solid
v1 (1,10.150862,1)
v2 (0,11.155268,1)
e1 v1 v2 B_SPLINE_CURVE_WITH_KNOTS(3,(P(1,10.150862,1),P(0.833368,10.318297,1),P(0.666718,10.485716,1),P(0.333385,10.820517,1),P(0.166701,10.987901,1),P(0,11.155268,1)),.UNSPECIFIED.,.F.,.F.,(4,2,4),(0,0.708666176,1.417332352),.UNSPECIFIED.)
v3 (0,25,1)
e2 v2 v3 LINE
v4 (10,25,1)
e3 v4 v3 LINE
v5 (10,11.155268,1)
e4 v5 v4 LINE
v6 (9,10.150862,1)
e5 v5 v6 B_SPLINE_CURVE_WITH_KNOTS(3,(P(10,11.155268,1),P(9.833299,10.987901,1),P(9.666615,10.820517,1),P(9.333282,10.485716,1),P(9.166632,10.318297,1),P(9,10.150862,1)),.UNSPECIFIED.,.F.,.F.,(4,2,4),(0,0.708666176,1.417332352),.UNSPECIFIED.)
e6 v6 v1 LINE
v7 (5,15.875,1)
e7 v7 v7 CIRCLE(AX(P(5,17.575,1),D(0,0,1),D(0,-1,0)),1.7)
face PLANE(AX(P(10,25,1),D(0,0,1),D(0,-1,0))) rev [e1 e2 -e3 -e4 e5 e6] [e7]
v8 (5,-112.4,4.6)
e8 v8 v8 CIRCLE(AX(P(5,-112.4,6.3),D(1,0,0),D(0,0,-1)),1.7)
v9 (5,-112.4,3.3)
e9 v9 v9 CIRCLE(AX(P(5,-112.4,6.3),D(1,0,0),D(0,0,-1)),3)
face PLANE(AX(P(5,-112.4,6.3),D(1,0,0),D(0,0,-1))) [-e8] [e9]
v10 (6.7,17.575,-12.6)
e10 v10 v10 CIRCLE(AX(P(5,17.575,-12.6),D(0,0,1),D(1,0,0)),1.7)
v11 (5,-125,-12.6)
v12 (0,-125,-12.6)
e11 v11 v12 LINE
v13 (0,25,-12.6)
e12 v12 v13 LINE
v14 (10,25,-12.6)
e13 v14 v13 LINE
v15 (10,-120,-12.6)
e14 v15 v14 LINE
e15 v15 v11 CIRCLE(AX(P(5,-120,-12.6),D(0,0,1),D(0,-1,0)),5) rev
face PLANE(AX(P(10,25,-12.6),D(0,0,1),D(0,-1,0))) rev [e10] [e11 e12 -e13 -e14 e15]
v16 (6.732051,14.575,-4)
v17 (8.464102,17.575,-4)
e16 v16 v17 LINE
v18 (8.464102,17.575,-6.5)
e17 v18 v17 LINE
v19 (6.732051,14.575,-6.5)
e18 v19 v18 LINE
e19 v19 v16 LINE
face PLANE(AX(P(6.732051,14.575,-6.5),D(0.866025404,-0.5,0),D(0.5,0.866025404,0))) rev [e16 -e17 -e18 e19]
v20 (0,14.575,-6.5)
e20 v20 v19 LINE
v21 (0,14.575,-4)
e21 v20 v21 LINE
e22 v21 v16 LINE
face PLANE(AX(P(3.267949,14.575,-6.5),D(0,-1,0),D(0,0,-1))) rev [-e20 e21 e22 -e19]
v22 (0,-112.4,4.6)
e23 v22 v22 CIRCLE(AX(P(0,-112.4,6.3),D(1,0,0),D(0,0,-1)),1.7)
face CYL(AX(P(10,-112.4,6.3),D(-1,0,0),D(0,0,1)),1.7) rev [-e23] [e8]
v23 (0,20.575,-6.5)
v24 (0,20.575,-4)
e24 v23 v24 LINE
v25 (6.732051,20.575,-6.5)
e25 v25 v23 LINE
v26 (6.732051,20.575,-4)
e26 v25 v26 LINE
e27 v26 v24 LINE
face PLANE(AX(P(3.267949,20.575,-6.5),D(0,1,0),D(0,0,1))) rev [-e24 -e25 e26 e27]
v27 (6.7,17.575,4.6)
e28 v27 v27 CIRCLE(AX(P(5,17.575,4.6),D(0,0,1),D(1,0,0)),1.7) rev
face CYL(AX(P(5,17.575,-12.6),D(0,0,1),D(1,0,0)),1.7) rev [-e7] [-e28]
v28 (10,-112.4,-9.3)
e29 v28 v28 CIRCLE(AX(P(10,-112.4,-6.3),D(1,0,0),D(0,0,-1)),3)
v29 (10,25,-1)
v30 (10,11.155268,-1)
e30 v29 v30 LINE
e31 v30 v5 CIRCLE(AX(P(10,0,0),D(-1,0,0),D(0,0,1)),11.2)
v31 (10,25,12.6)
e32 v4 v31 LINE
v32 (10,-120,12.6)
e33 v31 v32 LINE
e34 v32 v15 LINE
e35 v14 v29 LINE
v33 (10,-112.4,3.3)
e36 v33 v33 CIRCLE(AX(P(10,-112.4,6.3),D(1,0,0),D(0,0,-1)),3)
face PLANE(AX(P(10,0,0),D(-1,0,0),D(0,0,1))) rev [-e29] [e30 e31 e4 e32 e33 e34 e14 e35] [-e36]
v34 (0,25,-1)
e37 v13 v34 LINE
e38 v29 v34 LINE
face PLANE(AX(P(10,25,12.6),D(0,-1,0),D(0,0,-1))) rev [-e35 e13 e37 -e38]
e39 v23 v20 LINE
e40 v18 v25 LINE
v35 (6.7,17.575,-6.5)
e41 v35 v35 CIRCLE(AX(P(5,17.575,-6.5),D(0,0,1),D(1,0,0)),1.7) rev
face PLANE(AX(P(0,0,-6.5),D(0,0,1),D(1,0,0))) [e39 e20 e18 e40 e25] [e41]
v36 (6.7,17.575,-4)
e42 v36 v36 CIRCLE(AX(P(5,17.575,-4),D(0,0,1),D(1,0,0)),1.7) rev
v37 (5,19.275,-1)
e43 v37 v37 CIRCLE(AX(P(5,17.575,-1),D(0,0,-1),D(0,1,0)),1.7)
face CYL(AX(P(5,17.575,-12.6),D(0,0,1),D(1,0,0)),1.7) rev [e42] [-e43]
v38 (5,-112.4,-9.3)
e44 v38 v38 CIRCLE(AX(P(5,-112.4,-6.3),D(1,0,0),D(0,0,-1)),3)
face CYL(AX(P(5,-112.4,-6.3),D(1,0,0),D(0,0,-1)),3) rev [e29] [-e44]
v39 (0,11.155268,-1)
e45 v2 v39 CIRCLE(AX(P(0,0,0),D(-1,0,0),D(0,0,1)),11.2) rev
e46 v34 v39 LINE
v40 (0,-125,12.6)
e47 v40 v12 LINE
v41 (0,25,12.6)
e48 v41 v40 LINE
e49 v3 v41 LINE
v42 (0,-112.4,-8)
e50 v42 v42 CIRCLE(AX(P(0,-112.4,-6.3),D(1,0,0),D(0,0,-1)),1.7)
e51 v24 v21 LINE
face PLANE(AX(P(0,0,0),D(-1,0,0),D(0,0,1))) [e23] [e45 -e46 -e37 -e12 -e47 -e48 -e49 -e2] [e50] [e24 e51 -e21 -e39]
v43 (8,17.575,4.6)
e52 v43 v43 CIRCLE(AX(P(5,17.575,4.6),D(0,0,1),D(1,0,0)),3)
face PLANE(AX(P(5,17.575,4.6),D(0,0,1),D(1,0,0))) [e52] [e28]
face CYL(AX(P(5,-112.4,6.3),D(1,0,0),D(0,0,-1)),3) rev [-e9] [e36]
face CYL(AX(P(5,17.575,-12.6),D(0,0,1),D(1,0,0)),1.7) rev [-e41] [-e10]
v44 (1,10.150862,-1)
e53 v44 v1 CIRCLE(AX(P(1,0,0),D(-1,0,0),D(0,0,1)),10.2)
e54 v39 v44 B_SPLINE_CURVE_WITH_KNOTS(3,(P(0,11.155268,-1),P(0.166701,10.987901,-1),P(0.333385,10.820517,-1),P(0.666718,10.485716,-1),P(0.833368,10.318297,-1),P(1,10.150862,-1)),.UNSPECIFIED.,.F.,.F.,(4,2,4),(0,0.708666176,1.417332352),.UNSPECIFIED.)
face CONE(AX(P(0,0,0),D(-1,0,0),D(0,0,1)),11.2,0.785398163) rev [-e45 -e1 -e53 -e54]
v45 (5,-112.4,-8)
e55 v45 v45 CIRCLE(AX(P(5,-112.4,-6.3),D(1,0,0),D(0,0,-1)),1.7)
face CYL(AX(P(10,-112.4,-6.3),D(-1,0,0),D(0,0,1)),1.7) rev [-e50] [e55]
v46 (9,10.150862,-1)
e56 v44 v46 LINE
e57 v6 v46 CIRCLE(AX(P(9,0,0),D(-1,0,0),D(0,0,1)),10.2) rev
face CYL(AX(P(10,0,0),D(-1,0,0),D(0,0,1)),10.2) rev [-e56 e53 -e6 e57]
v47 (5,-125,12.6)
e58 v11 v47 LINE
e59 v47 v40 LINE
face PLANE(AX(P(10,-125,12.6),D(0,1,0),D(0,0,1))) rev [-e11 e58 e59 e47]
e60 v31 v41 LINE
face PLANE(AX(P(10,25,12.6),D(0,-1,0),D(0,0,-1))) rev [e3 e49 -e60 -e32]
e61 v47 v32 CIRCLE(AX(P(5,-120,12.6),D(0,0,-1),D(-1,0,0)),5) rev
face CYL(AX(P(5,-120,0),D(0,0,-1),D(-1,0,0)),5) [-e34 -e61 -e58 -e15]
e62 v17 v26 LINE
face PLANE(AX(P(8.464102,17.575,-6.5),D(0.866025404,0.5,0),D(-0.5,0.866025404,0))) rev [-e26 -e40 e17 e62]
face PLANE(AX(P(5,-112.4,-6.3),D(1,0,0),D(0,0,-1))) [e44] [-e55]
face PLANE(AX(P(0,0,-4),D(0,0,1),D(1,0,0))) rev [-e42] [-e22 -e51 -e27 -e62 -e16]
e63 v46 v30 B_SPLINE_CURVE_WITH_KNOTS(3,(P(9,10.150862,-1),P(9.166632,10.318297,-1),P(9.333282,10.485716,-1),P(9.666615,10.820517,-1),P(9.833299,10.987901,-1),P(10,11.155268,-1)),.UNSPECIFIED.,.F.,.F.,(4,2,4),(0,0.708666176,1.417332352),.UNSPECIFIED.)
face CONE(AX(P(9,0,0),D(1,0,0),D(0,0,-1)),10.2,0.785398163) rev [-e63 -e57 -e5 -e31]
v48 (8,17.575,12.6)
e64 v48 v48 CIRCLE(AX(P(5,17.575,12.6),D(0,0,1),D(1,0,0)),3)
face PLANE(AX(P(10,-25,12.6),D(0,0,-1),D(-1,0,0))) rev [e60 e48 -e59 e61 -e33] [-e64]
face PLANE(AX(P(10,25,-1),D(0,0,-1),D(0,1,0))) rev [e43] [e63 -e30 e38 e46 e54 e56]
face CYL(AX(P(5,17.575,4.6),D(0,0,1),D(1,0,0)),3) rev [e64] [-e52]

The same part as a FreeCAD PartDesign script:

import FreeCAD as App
import Part
import Sketcher
from FreeCAD import Vector
Q = App.Units.Quantity


def edges_at(feature, points):
    """Names of the edges that pass closest to the given points."""
    edges = feature.Shape.Edges
    near = lambda p: min(range(len(edges)), key=lambda i: edges[i].distToShape(Part.Vertex(*p))[0])
    return sorted({f"Edge{near(p) + 1}" for p in points})


def add_polygon(sketch, points):
    """Adds a closed chain of lines whose ends are joined by coincident constraints."""
    first, n = sketch.GeometryCount, len(points)
    for a, b in zip(points, points[1:] + points[:1]):
        sketch.addGeometry(Part.LineSegment(App.Vector(*a, 0), App.Vector(*b, 0)), False)
    for i in range(n):
        sketch.addConstraint(Sketcher.Constraint("Coincident", first + i, 2, first + (i + 1) % n, 1))

doc = App.newDocument("Part")
params = doc.addObject("Spreadsheet::Sheet", "Params")
for row, (alias, value) in enumerate([
    ("sketch1_diameter", "20.4 mm"),
    ("sketch1_width", "150 mm"),
    ("sketch1_height", "25.2 mm"),
    ("pad1_length", "10 mm"),
    ("sketch2_diameter", "3.4 mm"),
    ("sketch3_width", "25 mm"),
    ("sketch3_height", "2 mm"),
    ("sketch4_diameter", "3.4 mm"),
    ("sketch5_height", "6 mm"),
    ("pocket4_length", "2.5 mm"),
    ("fillet_radius", "5 mm"),
    ("chamfer_size", "1 mm"),
    ("sketch6_diameter", "6 mm"),
    ("pocket5_length", "8 mm"),
    ("sketch7_diameter", "6 mm"),
    ("pocket6_length", "5 mm"),
], start=1):
    params.set(f"A{row}", alias)
    params.set(f"B{row}", "=" + value)
    params.setAlias(f"B{row}", alias)

body = doc.addObject("PartDesign::Body", "Body")

# Sketch on YZ plane
sketch1 = doc.addObject("Sketcher::SketchObject", "Sketch")
body.addObject(sketch1)
sketch1.AttachmentSupport = (doc.YZ_Plane, [""])
sketch1.MapMode = "FlatFace"
add_polygon(sketch1, [(-125, 13), (-125, -13), (25, -13), (25, 13)])  # lines 0-3
sketch1.addGeometry(Part.Circle(Vector(0, 0, 0), Vector(0, 0, 1), 10), False)  # 4
sketch1.addConstraint(Sketcher.Constraint("Vertical", 0))
sketch1.addConstraint(Sketcher.Constraint("Horizontal", 1))
sketch1.addConstraint(Sketcher.Constraint("Vertical", 2))
sketch1.addConstraint(Sketcher.Constraint("Horizontal", 3))
sketch1.addConstraint(Sketcher.Constraint("Coincident", 4, 3, -1, 1))
sketch1.addConstraint(Sketcher.Constraint("Diameter", 4, 20.4))
sketch1.addConstraint(Sketcher.Constraint("DistanceX", 1, 1, 1, 2, 150.0))
sketch1.addConstraint(Sketcher.Constraint("DistanceY", 0, 2, 0, 1, 25.2))
sketch1.addConstraint(Sketcher.Constraint("DistanceX", 0, 2, -1, 1, 125.0))
sketch1.addConstraint(Sketcher.Constraint("DistanceY", 0, 2, -1, 1, 12.6))
sketch1.setExpression("Constraints[9]", "Params.sketch1_diameter")
sketch1.setExpression("Constraints[10]", "Params.sketch1_width")
sketch1.setExpression("Constraints[11]", "Params.sketch1_height")
pad1 = doc.addObject("PartDesign::Pad", "Pad")
body.addObject(pad1)
pad1.Profile = sketch1
pad1.setExpression("Length", "Params.pad1_length")

# Sketch on YZ plane
sketch2 = doc.addObject("Sketcher::SketchObject", "Sketch001")
body.addObject(sketch2)
sketch2.AttachmentSupport = (doc.YZ_Plane, [""])
sketch2.MapMode = "FlatFace"
sketch2.addGeometry(Part.Circle(Vector(-112.4, 6.3, 0), Vector(0, 0, 1), 1.7), False)
sketch2.addGeometry(Part.Circle(Vector(-112.4, -6.3, 0), Vector(0, 0, 1), 1.7), False)
sketch2.addConstraint(Sketcher.Constraint("Equal", 0, 1))
sketch2.addConstraint(Sketcher.Constraint("Symmetric", 0, 3, 1, 3, -1))
sketch2.addConstraint(Sketcher.Constraint("Diameter", 0, 3.4))
sketch2.addConstraint(Sketcher.Constraint("DistanceX", 0, 3, -1, 1, 112.4))
sketch2.addConstraint(Sketcher.Constraint("DistanceY", -1, 1, 0, 3, 6.3))
sketch2.setExpression("Constraints[2]", "Params.sketch2_diameter")
pocket1 = doc.addObject("PartDesign::Pocket", "Pocket")
body.addObject(pocket1)
pocket1.Profile = sketch2
pocket1.Type = "ThroughAll"
pocket1.Reversed = True

# Sketch on YZ plane
sketch3 = doc.addObject("Sketcher::SketchObject", "Sketch002")
body.addObject(sketch3)
sketch3.AttachmentSupport = (doc.YZ_Plane, [""])
sketch3.MapMode = "FlatFace"
add_polygon(sketch3, [(25, -1), (0, -1), (0, 1), (25, 1)])  # lines 0-3
sketch3.addConstraint(Sketcher.Constraint("Horizontal", 0))
sketch3.addConstraint(Sketcher.Constraint("Vertical", 1))
sketch3.addConstraint(Sketcher.Constraint("Horizontal", 2))
sketch3.addConstraint(Sketcher.Constraint("Vertical", 3))
sketch3.addConstraint(Sketcher.Constraint("Symmetric", 0, 2, 1, 2, -1, 1))
sketch3.addConstraint(Sketcher.Constraint("DistanceX", 0, 2, 0, 1, 25.0))
sketch3.addConstraint(Sketcher.Constraint("DistanceY", 1, 1, 1, 2, 2.0))
sketch3.setExpression("Constraints[9]", "Params.sketch3_width")
sketch3.setExpression("Constraints[10]", "Params.sketch3_height")
pocket2 = doc.addObject("PartDesign::Pocket", "Pocket001")
body.addObject(pocket2)
pocket2.Profile = sketch3
pocket2.Type = "ThroughAll"
pocket2.Reversed = True

# Sketch on XY plane
sketch4 = doc.addObject("Sketcher::SketchObject", "Sketch003")
body.addObject(sketch4)
sketch4.AttachmentSupport = (doc.XY_Plane, [""])
sketch4.MapMode = "FlatFace"
sketch4.AttachmentOffset = App.Placement(Vector(0, 0, 12.6), App.Rotation())
sketch4.addGeometry(Part.Circle(Vector(5, 17.6, 0), Vector(0, 0, 1), 1.7), False)
sketch4.addConstraint(Sketcher.Constraint("Diameter", 0, 3.4))
sketch4.addConstraint(Sketcher.Constraint("DistanceX", -1, 1, 0, 3, 5.0))
sketch4.addConstraint(Sketcher.Constraint("DistanceY", -1, 1, 0, 3, 17.575))
sketch4.setExpression("Constraints[0]", "Params.sketch4_diameter")
pocket3 = doc.addObject("PartDesign::Pocket", "Pocket002")
body.addObject(pocket3)
pocket3.Profile = sketch4
pocket3.Type = "ThroughAll"

# Sketch on XY plane
sketch5 = doc.addObject("Sketcher::SketchObject", "Sketch004")
body.addObject(sketch5)
sketch5.AttachmentSupport = (doc.XY_Plane, [""])
sketch5.MapMode = "FlatFace"
sketch5.AttachmentOffset = App.Placement(Vector(0, 0, -4), App.Rotation())
add_polygon(sketch5, [(0, 20.6), (0, 14.6), (6.7, 14.6), (8.5, 17.6), (6.7, 20.6)])  # lines 0-4
sketch5.addConstraint(Sketcher.Constraint("Vertical", 0))
sketch5.addConstraint(Sketcher.Constraint("Horizontal", 1))
sketch5.addConstraint(Sketcher.Constraint("Horizontal", 4))
sketch5.addConstraint(Sketcher.Constraint("PointOnObject", 0, 2, -2))
sketch5.addConstraint(Sketcher.Constraint("Vertical", 1, 2, 3, 2))
sketch5.addConstraint(Sketcher.Constraint("Equal", 2, 3))
sketch5.addConstraint(Sketcher.Constraint("DistanceY", 0, 2, 0, 1, 6.0))
sketch5.addConstraint(Sketcher.Constraint("Angle", 2, Q("60 deg")))
sketch5.addConstraint(Sketcher.Constraint("DistanceY", -1, 1, 0, 2, 14.575))
sketch5.addConstraint(Sketcher.Constraint("DistanceX", 1, 1, 1, 2, 6.732051))
sketch5.setExpression("Constraints[11]", "Params.sketch5_height")
pocket4 = doc.addObject("PartDesign::Pocket", "Pocket003")
body.addObject(pocket4)
pocket4.Profile = sketch5
pocket4.setExpression("Length", "Params.pocket4_length")
doc.recompute()

fillet = doc.addObject("PartDesign::Fillet", "Fillet")
body.addObject(fillet)
fillet.Base = (pocket4, edges_at(pocket4, [(10, -125, 0)]))
fillet.setExpression("Radius", "Params.fillet_radius")
doc.recompute()

chamfer = doc.addObject("PartDesign::Chamfer", "Chamfer")
body.addObject(chamfer)
chamfer.Base = (fillet, edges_at(fillet, [(10, -10.2, 0), (0, -10.2, 0)]))
chamfer.setExpression("Size", "Params.chamfer_size")

# Sketch on XY plane
sketch6 = doc.addObject("Sketcher::SketchObject", "Sketch005")
body.addObject(sketch6)
sketch6.AttachmentSupport = (doc.XY_Plane, [""])
sketch6.MapMode = "FlatFace"
sketch6.AttachmentOffset = App.Placement(Vector(0, 0, 12.6), App.Rotation())
sketch6.addGeometry(Part.Circle(Vector(5, 17.6, 0), Vector(0, 0, 1), 3), False)
sketch6.addConstraint(Sketcher.Constraint("Diameter", 0, 6.0))
sketch6.addConstraint(Sketcher.Constraint("DistanceX", -1, 1, 0, 3, 5.0))
sketch6.addConstraint(Sketcher.Constraint("DistanceY", -1, 1, 0, 3, 17.575))
sketch6.setExpression("Constraints[0]", "Params.sketch6_diameter")
pocket5 = doc.addObject("PartDesign::Pocket", "Pocket004")
body.addObject(pocket5)
pocket5.Profile = sketch6
pocket5.setExpression("Length", "Params.pocket5_length")

# Sketch on YZ plane
sketch7 = doc.addObject("Sketcher::SketchObject", "Sketch006")
body.addObject(sketch7)
sketch7.AttachmentSupport = (doc.YZ_Plane, [""])
sketch7.MapMode = "FlatFace"
sketch7.AttachmentOffset = App.Placement(Vector(0, 0, 10), App.Rotation())
sketch7.addGeometry(Part.Circle(Vector(-112.4, -6.3, 0), Vector(0, 0, 1), 3), False)
sketch7.addGeometry(Part.Circle(Vector(-112.4, 6.3, 0), Vector(0, 0, 1), 3), False)
sketch7.addConstraint(Sketcher.Constraint("Equal", 0, 1))
sketch7.addConstraint(Sketcher.Constraint("Symmetric", 0, 3, 1, 3, -1))
sketch7.addConstraint(Sketcher.Constraint("Diameter", 0, 6.0))
sketch7.addConstraint(Sketcher.Constraint("DistanceX", 0, 3, -1, 1, 112.4))
sketch7.addConstraint(Sketcher.Constraint("DistanceY", 0, 3, -1, 1, 6.3))
sketch7.setExpression("Constraints[2]", "Params.sketch7_diameter")
pocket6 = doc.addObject("PartDesign::Pocket", "Pocket005")
body.addObject(pocket6)
pocket6.Profile = sketch7
pocket6.setExpression("Length", "Params.pocket6_length")

doc.recompute()
